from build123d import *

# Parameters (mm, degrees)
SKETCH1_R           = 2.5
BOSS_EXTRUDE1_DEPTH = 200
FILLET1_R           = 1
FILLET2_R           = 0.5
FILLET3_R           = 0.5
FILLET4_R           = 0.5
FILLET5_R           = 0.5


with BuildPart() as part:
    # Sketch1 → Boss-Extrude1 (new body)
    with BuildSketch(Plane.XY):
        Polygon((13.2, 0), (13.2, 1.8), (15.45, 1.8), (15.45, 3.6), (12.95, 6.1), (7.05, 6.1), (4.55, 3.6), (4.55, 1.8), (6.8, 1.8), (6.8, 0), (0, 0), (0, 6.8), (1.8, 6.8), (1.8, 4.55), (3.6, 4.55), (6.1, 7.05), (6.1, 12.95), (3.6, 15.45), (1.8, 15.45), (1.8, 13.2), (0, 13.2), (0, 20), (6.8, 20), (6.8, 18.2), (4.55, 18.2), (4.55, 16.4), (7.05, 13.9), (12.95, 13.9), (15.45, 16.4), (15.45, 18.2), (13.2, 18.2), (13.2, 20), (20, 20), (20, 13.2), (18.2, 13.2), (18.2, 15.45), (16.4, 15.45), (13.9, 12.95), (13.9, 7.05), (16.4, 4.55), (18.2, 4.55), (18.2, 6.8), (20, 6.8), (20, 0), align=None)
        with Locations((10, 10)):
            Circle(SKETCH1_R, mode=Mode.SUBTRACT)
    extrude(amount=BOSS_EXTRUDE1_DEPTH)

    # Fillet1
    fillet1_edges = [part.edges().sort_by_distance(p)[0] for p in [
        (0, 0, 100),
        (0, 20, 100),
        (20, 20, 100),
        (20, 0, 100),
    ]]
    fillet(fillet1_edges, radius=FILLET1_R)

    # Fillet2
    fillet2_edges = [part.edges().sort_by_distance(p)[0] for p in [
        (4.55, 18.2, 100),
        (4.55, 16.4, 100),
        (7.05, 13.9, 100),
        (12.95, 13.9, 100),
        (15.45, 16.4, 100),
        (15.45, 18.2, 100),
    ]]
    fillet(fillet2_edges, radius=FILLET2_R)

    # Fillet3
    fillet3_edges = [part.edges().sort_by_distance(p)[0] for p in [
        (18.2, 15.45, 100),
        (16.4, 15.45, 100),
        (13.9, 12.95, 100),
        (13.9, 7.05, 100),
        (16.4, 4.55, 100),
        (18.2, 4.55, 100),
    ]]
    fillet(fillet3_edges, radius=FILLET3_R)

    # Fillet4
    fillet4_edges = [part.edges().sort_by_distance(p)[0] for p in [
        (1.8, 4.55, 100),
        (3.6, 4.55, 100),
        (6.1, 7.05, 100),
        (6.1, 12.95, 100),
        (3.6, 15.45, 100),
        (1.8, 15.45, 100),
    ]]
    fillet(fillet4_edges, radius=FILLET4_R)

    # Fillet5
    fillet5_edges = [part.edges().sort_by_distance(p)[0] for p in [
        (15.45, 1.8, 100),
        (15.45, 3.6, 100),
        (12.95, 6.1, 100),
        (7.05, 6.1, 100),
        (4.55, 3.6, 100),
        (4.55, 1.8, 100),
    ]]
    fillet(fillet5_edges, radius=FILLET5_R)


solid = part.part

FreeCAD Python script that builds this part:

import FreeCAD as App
import Part
import Sketcher


def edges_at(feature, points):
    """Names of the edges that pass closest to the given points."""
    edges = feature.Shape.Edges
    near = lambda p: min(range(len(edges)), key=lambda i: edges[i].distToShape(Part.Vertex(*p))[0])
    return sorted({f"Edge{near(p) + 1}" for p in points})


def add_polygon(sketch, points):
    """Adds a closed chain of lines whose ends are joined by coincident constraints."""
    first, n = sketch.GeometryCount, len(points)
    for a, b in zip(points, points[1:] + points[:1]):
        sketch.addGeometry(Part.LineSegment(App.Vector(*a, 0), App.Vector(*b, 0)), False)
    for i in range(n):
        sketch.addConstraint(Sketcher.Constraint("Coincident", first + i, 2, first + (i + 1) % n, 1))

doc = App.newDocument("Part")
body = doc.addObject("PartDesign::Body", "Body")

sketch1 = body.newObject("Sketcher::SketchObject", "Sketch")
sketch1.AttachmentSupport = (doc.getObject("XY_Plane"), [""])
sketch1.MapMode = "FlatFace"
add_polygon(sketch1, [(13.2, 1.8), (13.2, 0), (20, 0), (20, 6.8), (18.2, 6.8), (18.2, 4.5), (16.4, 4.5), (13.9, 7), (13.9, 12.9), (16.4, 15.4), (18.2, 15.4), (18.2, 13.2), (20, 13.2), (20, 20), (13.2, 20), (13.2, 18.2), (15.4, 18.2), (15.4, 16.4), (12.9, 13.9), (7, 13.9), (4.5, 16.4), (4.5, 18.2), (6.8, 18.2), (6.8, 20), (0, 20), (0, 13.2), (1.8, 13.2), (1.8, 15.4), (3.6, 15.4), (6.1, 12.9), (6.1, 7), (3.6, 4.5), (1.8, 4.5), (1.8, 6.8), (0, 6.8), (0, 0), (6.8, 0), (6.8, 1.8), (4.5, 1.8), (4.5, 3.6), (7, 6.1), (12.9, 6.1), (15.4, 3.6), (15.4, 1.8)])
sketch1.addGeometry(Part.Circle(App.Vector(10, 10, 0), App.Vector(0, 0, 1), 2.5), False)
sketch1.addConstraint([
    Sketcher.Constraint("Vertical", 0),
    Sketcher.Constraint("Horizontal", 1),
    Sketcher.Constraint("Vertical", 2),
    Sketcher.Constraint("Horizontal", 3),
    Sketcher.Constraint("Vertical", 4),
    Sketcher.Constraint("Horizontal", 5),
    Sketcher.Constraint("Vertical", 7),
    Sketcher.Constraint("Horizontal", 9),
    Sketcher.Constraint("Vertical", 10),
    Sketcher.Constraint("Horizontal", 11),
    Sketcher.Constraint("Vertical", 12),
    Sketcher.Constraint("Horizontal", 13),
    Sketcher.Constraint("Vertical", 14),
    Sketcher.Constraint("Horizontal", 15),
    Sketcher.Constraint("Vertical", 16),
    Sketcher.Constraint("Horizontal", 18),
    Sketcher.Constraint("Vertical", 20),
    Sketcher.Constraint("Horizontal", 21),
    Sketcher.Constraint("Vertical", 22),
    Sketcher.Constraint("Horizontal", 23),
    Sketcher.Constraint("Vertical", 24),
    Sketcher.Constraint("Horizontal", 25),
    Sketcher.Constraint("Vertical", 26),
    Sketcher.Constraint("Horizontal", 27),
    Sketcher.Constraint("Vertical", 29),
    Sketcher.Constraint("Horizontal", 31),
    Sketcher.Constraint("Vertical", 32),
    Sketcher.Constraint("Horizontal", 33),
    Sketcher.Constraint("Vertical", 34),
    Sketcher.Constraint("Horizontal", 35),
    Sketcher.Constraint("Vertical", 36),
    Sketcher.Constraint("Horizontal", 37),
    Sketcher.Constraint("Vertical", 38),
    Sketcher.Constraint("Horizontal", 40),
    Sketcher.Constraint("Vertical", 42),
    Sketcher.Constraint("Horizontal", 43),
    Sketcher.Constraint("Coincident", 34, 2, -1, 1),
    Sketcher.Constraint("PointOnObject", 0, 2, -1),
    Sketcher.Constraint("PointOnObject", 23, 2, -2),
    Sketcher.Constraint("Perpendicular", 6, 8),
    Sketcher.Constraint("Parallel", 8, 17),
    Sketcher.Constraint("Perpendicular", 17, 19),
    Sketcher.Constraint("Parallel", 19, 28),
    Sketcher.Constraint("Perpendicular", 28, 30),
    Sketcher.Constraint("Parallel", 30, 39),
    Sketcher.Constraint("Perpendicular", 39, 41),
    Sketcher.Constraint("Horizontal", 16, 2, 19, 2),
    Sketcher.Constraint("Horizontal", 15, 2, 20, 2),
    Sketcher.Constraint("Horizontal", 13, 2, 22, 2),
    Sketcher.Constraint("Horizontal", 11, 2, 24, 2),
    Sketcher.Constraint("Horizontal", 9, 2, 26, 2),
    Sketcher.Constraint("Horizontal", 7, 2, 28, 2),
    Sketcher.Constraint("Horizontal", 6, 2, 29, 2),
    Sketcher.Constraint("Horizontal", 5, 2, 30, 2),
    Sketcher.Constraint("Horizontal", 3, 2, 32, 2),
    Sketcher.Constraint("Horizontal", 38, 2, 41, 2),
    Sketcher.Constraint("Horizontal", 37, 2, 42, 2),
    Sketcher.Constraint("Vertical", 5, 2, 8, 2),
    Sketcher.Constraint("Vertical", 4, 2, 9, 2),
    Sketcher.Constraint("Vertical", 2, 2, 11, 2),
    Sketcher.Constraint("Vertical", 0, 2, 13, 2),
    Sketcher.Constraint("Vertical", 27, 2, 30, 2),
    Sketcher.Constraint("Vertical", 26, 2, 31, 2),
    Sketcher.Constraint("Vertical", 22, 2, 35, 2),
    Sketcher.Constraint("Vertical", 20, 2, 37, 2),
    Sketcher.Constraint("Vertical", 18, 2, 39, 2),
    Sketcher.Constraint("Vertical", 17, 2, 40, 2),
    Sketcher.Constraint("Equal", 3, 5),
    Sketcher.Constraint("Equal", 15, 21),
    Sketcher.Constraint("Equal", 13, 23),
    Sketcher.Constraint("Equal", 11, 25),
    Sketcher.Constraint("Equal", 25, 27),
    Sketcher.Constraint("Equal", 33, 0),
    Sketcher.Constraint("Equal", 35, 2),
    Sketcher.Constraint("Equal", 43, 4),
    Sketcher.Constraint("Equal", 40, 7),
    Sketcher.Constraint("Equal", 4, 10),
    Sketcher.Constraint("Equal", 2, 12),
    Sketcher.Constraint("Equal", 0, 14),
    Sketcher.Constraint("Equal", 14, 16),
    Sketcher.Constraint("Equal", 36, 38),
    Sketcher.Constraint("Equal", 8, 17),
    Sketcher.Constraint("Diameter", 44, 5.0),
    Sketcher.Constraint("DistanceX", 1, 1, 1, 2, 6.8),
    Sketcher.Constraint("DistanceX", 3, 2, 3, 1, 1.8),
    Sketcher.Constraint("DistanceX", 18, 2, 18, 1, 5.9),
    Sketcher.Constraint("DistanceX", -1, 1, 44, 3, 10.0),
    Sketcher.Constraint("DistanceY", -1, 1, 44, 3, 10.0),
    Sketcher.Constraint("DistanceX", -1, 1, 1, 2, 20.0),
    Sketcher.Constraint("DistanceX", 15, 1, 15, 2, 2.25),
])
pad1 = body.newObject("PartDesign::Pad", "Pad")
pad1.Profile = sketch1
pad1.Length = 200
doc.recompute()

fillet = body.newObject("PartDesign::Fillet", "Fillet")
fillet.Base = (pad1, edges_at(pad1, [
    (0, 0, 100),
    (0, 20, 100),
    (20, 20, 100),
    (20, 0, 100),
]))
fillet.Radius = 1
doc.recompute()

fillet2 = body.newObject("PartDesign::Fillet", "Fillet001")
fillet2.Base = (fillet, edges_at(fillet, [
    (4.55, 18.2, 100),
    (4.55, 16.4, 100),
    (7.05, 13.9, 100),
    (12.95, 13.9, 100),
    (15.45, 16.4, 100),
    (15.45, 18.2, 100),
]))
fillet2.Radius = 0.5
doc.recompute()

fillet3 = body.newObject("PartDesign::Fillet", "Fillet002")
fillet3.Base = (fillet2, edges_at(fillet2, [
    (18.2, 15.45, 100),
    (16.4, 15.45, 100),
    (13.9, 12.95, 100),
    (13.9, 7.05, 100),
    (16.4, 4.55, 100),
    (18.2, 4.55, 100),
]))
fillet3.Radius = 0.5
doc.recompute()

fillet4 = body.newObject("PartDesign::Fillet", "Fillet003")
fillet4.Base = (fillet3, edges_at(fillet3, [
    (1.8, 4.55, 100),
    (3.6, 4.55, 100),
    (6.1, 7.05, 100),
    (6.1, 12.95, 100),
    (3.6, 15.45, 100),
    (1.8, 15.45, 100),
]))
fillet4.Radius = 0.5
doc.recompute()

fillet5 = body.newObject("PartDesign::Fillet", "Fillet004")
fillet5.Base = (fillet4, edges_at(fillet4, [
    (15.45, 1.8, 100),
    (15.45, 3.6, 100),
    (12.95, 6.1, 100),
    (7.05, 6.1, 100),
    (4.55, 3.6, 100),
    (4.55, 1.8, 100),
]))
fillet5.Radius = 0.5

doc.recompute()
